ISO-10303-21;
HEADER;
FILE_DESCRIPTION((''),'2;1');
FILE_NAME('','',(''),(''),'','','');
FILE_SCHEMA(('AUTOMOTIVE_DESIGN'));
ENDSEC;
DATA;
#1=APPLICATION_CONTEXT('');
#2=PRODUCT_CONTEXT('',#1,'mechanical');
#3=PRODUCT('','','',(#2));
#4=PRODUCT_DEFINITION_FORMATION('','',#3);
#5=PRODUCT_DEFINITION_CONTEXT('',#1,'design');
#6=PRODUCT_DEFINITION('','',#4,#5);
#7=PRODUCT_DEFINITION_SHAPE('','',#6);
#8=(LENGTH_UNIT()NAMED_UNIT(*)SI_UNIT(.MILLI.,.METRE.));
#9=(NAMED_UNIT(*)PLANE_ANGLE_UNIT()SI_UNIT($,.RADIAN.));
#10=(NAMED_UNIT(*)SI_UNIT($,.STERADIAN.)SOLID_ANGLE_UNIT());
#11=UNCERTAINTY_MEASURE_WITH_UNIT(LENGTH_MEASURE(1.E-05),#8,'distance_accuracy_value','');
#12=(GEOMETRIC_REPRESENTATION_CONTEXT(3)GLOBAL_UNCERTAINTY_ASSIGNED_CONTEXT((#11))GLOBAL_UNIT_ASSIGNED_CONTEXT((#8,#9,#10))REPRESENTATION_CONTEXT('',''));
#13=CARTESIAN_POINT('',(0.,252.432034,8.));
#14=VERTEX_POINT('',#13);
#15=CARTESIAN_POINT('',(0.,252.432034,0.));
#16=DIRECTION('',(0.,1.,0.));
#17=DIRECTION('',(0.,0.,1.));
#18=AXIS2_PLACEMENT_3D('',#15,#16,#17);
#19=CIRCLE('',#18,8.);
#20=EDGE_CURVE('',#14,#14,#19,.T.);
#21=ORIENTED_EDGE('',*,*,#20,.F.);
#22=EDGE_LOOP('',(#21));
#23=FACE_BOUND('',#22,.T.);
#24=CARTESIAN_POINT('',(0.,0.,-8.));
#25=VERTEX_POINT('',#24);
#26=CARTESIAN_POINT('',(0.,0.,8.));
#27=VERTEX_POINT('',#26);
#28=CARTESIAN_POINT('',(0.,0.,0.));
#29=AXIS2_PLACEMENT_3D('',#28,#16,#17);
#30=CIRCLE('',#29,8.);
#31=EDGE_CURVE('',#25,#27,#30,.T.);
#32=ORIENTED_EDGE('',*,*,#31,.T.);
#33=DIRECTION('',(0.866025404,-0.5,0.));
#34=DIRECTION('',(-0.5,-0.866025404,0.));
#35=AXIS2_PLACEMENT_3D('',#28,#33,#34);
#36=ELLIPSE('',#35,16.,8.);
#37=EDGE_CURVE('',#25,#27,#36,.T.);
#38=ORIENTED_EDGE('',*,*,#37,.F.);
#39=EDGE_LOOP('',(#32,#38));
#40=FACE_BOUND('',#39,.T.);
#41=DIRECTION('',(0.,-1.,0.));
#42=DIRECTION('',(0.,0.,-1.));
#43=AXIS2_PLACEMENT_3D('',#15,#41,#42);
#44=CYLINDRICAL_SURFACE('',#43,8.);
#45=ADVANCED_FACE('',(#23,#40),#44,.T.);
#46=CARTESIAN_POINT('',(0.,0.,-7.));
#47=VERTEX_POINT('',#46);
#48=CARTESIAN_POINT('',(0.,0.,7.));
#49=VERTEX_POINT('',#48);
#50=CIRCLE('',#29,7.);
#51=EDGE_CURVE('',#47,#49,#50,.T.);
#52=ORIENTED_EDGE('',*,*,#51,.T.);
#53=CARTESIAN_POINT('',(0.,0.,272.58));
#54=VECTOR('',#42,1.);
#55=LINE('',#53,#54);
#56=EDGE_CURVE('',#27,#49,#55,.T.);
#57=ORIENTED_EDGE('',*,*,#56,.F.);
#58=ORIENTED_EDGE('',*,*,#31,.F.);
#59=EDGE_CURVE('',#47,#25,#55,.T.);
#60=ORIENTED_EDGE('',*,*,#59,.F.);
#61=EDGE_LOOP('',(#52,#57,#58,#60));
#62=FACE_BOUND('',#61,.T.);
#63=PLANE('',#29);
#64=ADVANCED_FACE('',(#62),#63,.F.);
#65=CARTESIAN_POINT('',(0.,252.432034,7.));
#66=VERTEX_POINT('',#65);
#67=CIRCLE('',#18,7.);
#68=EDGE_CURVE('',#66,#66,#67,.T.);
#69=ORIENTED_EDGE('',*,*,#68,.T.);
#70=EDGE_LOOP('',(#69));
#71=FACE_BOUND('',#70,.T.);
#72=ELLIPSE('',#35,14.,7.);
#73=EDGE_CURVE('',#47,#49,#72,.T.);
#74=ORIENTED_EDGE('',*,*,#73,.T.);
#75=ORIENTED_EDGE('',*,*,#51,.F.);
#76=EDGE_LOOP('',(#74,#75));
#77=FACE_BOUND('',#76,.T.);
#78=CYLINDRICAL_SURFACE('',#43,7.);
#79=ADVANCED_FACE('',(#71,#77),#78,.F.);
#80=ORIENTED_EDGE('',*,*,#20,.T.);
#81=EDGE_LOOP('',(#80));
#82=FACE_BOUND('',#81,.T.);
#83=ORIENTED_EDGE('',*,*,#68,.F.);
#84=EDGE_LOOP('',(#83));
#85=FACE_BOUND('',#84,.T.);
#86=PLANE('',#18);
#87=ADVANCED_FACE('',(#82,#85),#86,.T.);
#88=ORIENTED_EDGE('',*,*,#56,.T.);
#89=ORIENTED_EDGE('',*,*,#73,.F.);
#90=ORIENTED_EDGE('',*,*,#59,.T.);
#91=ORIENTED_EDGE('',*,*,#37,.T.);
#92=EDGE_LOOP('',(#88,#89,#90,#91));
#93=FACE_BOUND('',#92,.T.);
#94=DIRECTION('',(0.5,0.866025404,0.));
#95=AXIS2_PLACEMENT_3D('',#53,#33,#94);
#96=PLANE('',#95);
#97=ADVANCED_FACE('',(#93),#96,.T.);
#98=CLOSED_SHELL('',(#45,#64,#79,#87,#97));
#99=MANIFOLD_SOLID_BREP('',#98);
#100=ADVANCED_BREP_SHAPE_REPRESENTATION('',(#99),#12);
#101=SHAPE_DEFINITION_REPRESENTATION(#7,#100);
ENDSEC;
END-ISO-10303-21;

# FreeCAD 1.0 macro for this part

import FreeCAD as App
import Part
import Sketcher

V = App.Vector
Q = App.Units.Quantity


def add_polygon(sketch, points):
    """Adds a closed chain of lines whose ends are joined by coincident constraints."""
    first, n = sketch.GeometryCount, len(points)
    for a, b in zip(points, points[1:] + points[:1]):
        sketch.addGeometry(Part.LineSegment(App.Vector(*a, 0), App.Vector(*b, 0)), False)
    for i in range(n):
        sketch.addConstraint(Sketcher.Constraint("Coincident", first + i, 2, first + (i + 1) % n, 1))

doc = App.newDocument("Part")
body = doc.addObject("PartDesign::Body", "Body")

sketch1 = body.newObject("Sketcher::SketchObject", "Sketch")
sketch1.AttachmentSupport = (doc.getObject("XZ_Plane"), [""])
sketch1.MapMode = "FlatFace"
sketch1.addGeometry([
    Part.Circle(V(0, 0, 0), V(0, 0, 1), 8),
    Part.Circle(V(0, 0, 0), V(0, 0, 1), 7),
], False)
sketch1.addConstraint([
    Sketcher.Constraint("Coincident", 0, 3, -1, 1),
    Sketcher.Constraint("Coincident", 1, 3, -1, 1),
    Sketcher.Constraint("Diameter", 0, Q("16 mm")),
    Sketcher.Constraint("Diameter", 1, Q("14 mm")),
])
pad1 = body.newObject("PartDesign::Pad", "Pad")
pad1.Profile = sketch1
pad1.Length = 252.432034
pad1.Reversed = True

sketch2 = body.newObject("Sketcher::SketchObject", "Sketch001")
sketch2.AttachmentSupport = (doc.getObject("XY_Plane"), [""])
sketch2.MapMode = "FlatFace"
add_polygon(sketch2, [(8, 13.856406), (0, 0), (8, 0)])
sketch2.addConstraint([
    Sketcher.Constraint("Horizontal", 1),
    Sketcher.Constraint("Vertical", 2),
    Sketcher.Constraint("Coincident", 0, 2, -1, 1),
    Sketcher.Constraint("DistanceX", 1, 1, 1, 2, Q("8 mm")),
    Sketcher.Constraint("Angle", 0, Q("-120 deg")),
])
pocket1 = body.newObject("PartDesign::Pocket", "Pocket")
pocket1.Profile = sketch2
pocket1.Type = "ThroughAll"
pocket1.Midplane = True

doc.recompute()
